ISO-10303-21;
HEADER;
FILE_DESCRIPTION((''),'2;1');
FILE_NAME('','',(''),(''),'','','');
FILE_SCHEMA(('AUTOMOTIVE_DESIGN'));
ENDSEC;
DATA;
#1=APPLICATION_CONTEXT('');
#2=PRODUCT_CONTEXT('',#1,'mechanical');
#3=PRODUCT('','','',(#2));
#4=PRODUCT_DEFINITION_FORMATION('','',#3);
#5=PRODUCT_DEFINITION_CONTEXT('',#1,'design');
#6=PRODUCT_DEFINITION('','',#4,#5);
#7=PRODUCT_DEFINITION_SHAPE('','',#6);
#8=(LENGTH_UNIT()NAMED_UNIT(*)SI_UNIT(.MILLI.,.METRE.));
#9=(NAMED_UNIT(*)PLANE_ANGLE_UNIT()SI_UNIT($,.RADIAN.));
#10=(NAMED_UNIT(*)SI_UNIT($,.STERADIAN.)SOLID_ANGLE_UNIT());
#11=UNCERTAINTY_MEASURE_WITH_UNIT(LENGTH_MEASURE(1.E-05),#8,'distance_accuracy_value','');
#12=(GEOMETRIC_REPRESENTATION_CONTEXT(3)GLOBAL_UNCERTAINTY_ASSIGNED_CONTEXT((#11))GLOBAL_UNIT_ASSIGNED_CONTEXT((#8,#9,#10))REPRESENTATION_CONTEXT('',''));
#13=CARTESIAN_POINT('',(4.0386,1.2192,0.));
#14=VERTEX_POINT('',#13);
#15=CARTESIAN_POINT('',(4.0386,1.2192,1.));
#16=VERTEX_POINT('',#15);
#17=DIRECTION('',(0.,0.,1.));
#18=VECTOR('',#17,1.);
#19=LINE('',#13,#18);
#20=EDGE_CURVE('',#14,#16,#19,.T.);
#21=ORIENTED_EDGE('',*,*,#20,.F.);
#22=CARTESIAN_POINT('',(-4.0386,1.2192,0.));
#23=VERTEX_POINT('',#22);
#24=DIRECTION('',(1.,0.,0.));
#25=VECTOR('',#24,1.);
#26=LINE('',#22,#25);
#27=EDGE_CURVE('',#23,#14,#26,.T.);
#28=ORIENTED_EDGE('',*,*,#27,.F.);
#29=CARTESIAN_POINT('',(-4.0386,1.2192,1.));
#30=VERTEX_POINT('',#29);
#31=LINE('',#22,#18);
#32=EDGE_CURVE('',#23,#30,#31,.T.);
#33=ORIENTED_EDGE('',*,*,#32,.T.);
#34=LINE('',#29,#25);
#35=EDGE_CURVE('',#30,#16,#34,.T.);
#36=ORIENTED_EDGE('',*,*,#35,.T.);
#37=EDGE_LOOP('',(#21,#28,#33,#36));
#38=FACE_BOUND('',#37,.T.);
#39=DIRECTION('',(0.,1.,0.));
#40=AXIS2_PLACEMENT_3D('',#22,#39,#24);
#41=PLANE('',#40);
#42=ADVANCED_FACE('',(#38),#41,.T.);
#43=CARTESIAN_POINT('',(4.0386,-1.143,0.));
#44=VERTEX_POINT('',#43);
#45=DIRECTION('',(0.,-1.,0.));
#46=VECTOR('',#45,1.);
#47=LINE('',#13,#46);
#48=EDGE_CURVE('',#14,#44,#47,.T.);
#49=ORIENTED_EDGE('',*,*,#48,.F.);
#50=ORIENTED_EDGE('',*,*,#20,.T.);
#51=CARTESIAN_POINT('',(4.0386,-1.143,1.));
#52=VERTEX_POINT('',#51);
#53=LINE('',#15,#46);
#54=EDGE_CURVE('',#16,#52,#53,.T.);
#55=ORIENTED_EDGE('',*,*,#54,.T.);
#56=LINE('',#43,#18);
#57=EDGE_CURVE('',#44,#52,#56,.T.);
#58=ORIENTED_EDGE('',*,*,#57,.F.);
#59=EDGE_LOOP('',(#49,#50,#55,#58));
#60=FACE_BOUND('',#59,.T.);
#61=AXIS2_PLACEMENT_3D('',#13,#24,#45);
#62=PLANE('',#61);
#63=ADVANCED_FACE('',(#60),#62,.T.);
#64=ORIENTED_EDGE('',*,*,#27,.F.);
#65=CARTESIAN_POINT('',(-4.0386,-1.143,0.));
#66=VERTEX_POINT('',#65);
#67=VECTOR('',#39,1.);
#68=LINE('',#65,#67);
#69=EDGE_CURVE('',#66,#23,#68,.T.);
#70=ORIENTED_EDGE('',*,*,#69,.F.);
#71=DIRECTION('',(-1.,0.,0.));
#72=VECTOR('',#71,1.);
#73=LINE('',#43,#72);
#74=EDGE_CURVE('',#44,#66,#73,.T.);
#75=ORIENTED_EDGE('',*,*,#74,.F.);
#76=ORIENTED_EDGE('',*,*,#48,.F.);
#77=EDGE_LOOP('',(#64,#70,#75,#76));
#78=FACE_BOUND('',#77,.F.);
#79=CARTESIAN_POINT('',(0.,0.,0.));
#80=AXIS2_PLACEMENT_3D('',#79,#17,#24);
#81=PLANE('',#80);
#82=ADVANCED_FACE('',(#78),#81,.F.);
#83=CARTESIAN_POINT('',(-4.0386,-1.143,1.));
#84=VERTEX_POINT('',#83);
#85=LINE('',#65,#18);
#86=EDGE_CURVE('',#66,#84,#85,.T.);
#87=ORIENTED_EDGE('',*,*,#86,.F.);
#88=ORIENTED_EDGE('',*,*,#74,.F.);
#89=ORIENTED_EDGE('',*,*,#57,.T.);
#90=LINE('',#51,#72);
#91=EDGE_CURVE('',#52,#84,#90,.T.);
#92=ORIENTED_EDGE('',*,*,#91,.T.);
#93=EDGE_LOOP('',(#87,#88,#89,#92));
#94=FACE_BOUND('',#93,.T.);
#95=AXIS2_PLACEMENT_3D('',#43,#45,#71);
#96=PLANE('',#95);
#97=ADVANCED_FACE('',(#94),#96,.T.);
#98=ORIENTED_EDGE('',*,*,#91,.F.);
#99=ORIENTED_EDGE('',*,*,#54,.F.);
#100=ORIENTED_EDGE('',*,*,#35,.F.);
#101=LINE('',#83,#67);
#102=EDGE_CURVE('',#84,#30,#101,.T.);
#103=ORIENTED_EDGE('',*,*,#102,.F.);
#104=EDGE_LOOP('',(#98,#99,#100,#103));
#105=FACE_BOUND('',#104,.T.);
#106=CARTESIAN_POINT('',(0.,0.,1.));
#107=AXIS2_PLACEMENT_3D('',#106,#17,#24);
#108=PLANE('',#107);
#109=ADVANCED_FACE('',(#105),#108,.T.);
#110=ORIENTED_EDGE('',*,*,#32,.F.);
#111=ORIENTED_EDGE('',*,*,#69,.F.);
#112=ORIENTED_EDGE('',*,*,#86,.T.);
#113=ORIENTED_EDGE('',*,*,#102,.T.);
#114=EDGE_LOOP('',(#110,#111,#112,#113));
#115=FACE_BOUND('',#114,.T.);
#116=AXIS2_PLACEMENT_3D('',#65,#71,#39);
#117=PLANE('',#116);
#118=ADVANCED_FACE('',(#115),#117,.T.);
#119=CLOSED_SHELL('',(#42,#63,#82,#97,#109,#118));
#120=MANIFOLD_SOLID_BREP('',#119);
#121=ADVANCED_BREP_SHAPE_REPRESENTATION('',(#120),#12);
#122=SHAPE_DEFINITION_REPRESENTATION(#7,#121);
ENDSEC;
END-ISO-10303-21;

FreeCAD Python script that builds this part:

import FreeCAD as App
import Part
import Sketcher

V = App.Vector
Q = App.Units.Quantity

doc = App.newDocument("Part")
body = doc.addObject("PartDesign::Body", "Body")

sketch1 = body.newObject("Sketcher::SketchObject", "Sketch")
sketch1.AttachmentSupport = (doc.getObject("XY_Plane"), [""])
sketch1.MapMode = "FlatFace"
sketch1.addGeometry([
    Part.LineSegment(V(4, 1.2, 0), V(-4, 1.2, 0)),
    Part.LineSegment(V(-4, 1.2, 0), V(-4, -1.1, 0)),
    Part.LineSegment(V(-4, -1.1, 0), V(4, -1.1, 0)),
    Part.LineSegment(V(4, -1.1, 0), V(4, 1.2, 0)),
], False)
sketch1.addConstraint([
    Sketcher.Constraint("Coincident", 0, 2, 1, 1),
    Sketcher.Constraint("Coincident", 1, 2, 2, 1),
    Sketcher.Constraint("Coincident", 2, 2, 3, 1),
    Sketcher.Constraint("Coincident", 3, 2, 0, 1),
    Sketcher.Constraint("Horizontal", 0),
    Sketcher.Constraint("Vertical", 1),
    Sketcher.Constraint("Horizontal", 2),
    Sketcher.Constraint("Vertical", 3),
    Sketcher.Constraint("DistanceX", 0, 2, 0, 1, Q("0.318 in")),
    Sketcher.Constraint("DistanceY", 1, 2, 1, 1, Q("0.093 in")),
    Sketcher.Constraint("DistanceX", 0, 2, -1, 1, Q("0.159 in")),
    Sketcher.Constraint("DistanceY", -1, 1, 0, 2, Q("0.048 in")),
])
pad1 = body.newObject("PartDesign::Pad", "Pad")
pad1.Profile = sketch1
pad1.Length = 1

doc.recompute()
